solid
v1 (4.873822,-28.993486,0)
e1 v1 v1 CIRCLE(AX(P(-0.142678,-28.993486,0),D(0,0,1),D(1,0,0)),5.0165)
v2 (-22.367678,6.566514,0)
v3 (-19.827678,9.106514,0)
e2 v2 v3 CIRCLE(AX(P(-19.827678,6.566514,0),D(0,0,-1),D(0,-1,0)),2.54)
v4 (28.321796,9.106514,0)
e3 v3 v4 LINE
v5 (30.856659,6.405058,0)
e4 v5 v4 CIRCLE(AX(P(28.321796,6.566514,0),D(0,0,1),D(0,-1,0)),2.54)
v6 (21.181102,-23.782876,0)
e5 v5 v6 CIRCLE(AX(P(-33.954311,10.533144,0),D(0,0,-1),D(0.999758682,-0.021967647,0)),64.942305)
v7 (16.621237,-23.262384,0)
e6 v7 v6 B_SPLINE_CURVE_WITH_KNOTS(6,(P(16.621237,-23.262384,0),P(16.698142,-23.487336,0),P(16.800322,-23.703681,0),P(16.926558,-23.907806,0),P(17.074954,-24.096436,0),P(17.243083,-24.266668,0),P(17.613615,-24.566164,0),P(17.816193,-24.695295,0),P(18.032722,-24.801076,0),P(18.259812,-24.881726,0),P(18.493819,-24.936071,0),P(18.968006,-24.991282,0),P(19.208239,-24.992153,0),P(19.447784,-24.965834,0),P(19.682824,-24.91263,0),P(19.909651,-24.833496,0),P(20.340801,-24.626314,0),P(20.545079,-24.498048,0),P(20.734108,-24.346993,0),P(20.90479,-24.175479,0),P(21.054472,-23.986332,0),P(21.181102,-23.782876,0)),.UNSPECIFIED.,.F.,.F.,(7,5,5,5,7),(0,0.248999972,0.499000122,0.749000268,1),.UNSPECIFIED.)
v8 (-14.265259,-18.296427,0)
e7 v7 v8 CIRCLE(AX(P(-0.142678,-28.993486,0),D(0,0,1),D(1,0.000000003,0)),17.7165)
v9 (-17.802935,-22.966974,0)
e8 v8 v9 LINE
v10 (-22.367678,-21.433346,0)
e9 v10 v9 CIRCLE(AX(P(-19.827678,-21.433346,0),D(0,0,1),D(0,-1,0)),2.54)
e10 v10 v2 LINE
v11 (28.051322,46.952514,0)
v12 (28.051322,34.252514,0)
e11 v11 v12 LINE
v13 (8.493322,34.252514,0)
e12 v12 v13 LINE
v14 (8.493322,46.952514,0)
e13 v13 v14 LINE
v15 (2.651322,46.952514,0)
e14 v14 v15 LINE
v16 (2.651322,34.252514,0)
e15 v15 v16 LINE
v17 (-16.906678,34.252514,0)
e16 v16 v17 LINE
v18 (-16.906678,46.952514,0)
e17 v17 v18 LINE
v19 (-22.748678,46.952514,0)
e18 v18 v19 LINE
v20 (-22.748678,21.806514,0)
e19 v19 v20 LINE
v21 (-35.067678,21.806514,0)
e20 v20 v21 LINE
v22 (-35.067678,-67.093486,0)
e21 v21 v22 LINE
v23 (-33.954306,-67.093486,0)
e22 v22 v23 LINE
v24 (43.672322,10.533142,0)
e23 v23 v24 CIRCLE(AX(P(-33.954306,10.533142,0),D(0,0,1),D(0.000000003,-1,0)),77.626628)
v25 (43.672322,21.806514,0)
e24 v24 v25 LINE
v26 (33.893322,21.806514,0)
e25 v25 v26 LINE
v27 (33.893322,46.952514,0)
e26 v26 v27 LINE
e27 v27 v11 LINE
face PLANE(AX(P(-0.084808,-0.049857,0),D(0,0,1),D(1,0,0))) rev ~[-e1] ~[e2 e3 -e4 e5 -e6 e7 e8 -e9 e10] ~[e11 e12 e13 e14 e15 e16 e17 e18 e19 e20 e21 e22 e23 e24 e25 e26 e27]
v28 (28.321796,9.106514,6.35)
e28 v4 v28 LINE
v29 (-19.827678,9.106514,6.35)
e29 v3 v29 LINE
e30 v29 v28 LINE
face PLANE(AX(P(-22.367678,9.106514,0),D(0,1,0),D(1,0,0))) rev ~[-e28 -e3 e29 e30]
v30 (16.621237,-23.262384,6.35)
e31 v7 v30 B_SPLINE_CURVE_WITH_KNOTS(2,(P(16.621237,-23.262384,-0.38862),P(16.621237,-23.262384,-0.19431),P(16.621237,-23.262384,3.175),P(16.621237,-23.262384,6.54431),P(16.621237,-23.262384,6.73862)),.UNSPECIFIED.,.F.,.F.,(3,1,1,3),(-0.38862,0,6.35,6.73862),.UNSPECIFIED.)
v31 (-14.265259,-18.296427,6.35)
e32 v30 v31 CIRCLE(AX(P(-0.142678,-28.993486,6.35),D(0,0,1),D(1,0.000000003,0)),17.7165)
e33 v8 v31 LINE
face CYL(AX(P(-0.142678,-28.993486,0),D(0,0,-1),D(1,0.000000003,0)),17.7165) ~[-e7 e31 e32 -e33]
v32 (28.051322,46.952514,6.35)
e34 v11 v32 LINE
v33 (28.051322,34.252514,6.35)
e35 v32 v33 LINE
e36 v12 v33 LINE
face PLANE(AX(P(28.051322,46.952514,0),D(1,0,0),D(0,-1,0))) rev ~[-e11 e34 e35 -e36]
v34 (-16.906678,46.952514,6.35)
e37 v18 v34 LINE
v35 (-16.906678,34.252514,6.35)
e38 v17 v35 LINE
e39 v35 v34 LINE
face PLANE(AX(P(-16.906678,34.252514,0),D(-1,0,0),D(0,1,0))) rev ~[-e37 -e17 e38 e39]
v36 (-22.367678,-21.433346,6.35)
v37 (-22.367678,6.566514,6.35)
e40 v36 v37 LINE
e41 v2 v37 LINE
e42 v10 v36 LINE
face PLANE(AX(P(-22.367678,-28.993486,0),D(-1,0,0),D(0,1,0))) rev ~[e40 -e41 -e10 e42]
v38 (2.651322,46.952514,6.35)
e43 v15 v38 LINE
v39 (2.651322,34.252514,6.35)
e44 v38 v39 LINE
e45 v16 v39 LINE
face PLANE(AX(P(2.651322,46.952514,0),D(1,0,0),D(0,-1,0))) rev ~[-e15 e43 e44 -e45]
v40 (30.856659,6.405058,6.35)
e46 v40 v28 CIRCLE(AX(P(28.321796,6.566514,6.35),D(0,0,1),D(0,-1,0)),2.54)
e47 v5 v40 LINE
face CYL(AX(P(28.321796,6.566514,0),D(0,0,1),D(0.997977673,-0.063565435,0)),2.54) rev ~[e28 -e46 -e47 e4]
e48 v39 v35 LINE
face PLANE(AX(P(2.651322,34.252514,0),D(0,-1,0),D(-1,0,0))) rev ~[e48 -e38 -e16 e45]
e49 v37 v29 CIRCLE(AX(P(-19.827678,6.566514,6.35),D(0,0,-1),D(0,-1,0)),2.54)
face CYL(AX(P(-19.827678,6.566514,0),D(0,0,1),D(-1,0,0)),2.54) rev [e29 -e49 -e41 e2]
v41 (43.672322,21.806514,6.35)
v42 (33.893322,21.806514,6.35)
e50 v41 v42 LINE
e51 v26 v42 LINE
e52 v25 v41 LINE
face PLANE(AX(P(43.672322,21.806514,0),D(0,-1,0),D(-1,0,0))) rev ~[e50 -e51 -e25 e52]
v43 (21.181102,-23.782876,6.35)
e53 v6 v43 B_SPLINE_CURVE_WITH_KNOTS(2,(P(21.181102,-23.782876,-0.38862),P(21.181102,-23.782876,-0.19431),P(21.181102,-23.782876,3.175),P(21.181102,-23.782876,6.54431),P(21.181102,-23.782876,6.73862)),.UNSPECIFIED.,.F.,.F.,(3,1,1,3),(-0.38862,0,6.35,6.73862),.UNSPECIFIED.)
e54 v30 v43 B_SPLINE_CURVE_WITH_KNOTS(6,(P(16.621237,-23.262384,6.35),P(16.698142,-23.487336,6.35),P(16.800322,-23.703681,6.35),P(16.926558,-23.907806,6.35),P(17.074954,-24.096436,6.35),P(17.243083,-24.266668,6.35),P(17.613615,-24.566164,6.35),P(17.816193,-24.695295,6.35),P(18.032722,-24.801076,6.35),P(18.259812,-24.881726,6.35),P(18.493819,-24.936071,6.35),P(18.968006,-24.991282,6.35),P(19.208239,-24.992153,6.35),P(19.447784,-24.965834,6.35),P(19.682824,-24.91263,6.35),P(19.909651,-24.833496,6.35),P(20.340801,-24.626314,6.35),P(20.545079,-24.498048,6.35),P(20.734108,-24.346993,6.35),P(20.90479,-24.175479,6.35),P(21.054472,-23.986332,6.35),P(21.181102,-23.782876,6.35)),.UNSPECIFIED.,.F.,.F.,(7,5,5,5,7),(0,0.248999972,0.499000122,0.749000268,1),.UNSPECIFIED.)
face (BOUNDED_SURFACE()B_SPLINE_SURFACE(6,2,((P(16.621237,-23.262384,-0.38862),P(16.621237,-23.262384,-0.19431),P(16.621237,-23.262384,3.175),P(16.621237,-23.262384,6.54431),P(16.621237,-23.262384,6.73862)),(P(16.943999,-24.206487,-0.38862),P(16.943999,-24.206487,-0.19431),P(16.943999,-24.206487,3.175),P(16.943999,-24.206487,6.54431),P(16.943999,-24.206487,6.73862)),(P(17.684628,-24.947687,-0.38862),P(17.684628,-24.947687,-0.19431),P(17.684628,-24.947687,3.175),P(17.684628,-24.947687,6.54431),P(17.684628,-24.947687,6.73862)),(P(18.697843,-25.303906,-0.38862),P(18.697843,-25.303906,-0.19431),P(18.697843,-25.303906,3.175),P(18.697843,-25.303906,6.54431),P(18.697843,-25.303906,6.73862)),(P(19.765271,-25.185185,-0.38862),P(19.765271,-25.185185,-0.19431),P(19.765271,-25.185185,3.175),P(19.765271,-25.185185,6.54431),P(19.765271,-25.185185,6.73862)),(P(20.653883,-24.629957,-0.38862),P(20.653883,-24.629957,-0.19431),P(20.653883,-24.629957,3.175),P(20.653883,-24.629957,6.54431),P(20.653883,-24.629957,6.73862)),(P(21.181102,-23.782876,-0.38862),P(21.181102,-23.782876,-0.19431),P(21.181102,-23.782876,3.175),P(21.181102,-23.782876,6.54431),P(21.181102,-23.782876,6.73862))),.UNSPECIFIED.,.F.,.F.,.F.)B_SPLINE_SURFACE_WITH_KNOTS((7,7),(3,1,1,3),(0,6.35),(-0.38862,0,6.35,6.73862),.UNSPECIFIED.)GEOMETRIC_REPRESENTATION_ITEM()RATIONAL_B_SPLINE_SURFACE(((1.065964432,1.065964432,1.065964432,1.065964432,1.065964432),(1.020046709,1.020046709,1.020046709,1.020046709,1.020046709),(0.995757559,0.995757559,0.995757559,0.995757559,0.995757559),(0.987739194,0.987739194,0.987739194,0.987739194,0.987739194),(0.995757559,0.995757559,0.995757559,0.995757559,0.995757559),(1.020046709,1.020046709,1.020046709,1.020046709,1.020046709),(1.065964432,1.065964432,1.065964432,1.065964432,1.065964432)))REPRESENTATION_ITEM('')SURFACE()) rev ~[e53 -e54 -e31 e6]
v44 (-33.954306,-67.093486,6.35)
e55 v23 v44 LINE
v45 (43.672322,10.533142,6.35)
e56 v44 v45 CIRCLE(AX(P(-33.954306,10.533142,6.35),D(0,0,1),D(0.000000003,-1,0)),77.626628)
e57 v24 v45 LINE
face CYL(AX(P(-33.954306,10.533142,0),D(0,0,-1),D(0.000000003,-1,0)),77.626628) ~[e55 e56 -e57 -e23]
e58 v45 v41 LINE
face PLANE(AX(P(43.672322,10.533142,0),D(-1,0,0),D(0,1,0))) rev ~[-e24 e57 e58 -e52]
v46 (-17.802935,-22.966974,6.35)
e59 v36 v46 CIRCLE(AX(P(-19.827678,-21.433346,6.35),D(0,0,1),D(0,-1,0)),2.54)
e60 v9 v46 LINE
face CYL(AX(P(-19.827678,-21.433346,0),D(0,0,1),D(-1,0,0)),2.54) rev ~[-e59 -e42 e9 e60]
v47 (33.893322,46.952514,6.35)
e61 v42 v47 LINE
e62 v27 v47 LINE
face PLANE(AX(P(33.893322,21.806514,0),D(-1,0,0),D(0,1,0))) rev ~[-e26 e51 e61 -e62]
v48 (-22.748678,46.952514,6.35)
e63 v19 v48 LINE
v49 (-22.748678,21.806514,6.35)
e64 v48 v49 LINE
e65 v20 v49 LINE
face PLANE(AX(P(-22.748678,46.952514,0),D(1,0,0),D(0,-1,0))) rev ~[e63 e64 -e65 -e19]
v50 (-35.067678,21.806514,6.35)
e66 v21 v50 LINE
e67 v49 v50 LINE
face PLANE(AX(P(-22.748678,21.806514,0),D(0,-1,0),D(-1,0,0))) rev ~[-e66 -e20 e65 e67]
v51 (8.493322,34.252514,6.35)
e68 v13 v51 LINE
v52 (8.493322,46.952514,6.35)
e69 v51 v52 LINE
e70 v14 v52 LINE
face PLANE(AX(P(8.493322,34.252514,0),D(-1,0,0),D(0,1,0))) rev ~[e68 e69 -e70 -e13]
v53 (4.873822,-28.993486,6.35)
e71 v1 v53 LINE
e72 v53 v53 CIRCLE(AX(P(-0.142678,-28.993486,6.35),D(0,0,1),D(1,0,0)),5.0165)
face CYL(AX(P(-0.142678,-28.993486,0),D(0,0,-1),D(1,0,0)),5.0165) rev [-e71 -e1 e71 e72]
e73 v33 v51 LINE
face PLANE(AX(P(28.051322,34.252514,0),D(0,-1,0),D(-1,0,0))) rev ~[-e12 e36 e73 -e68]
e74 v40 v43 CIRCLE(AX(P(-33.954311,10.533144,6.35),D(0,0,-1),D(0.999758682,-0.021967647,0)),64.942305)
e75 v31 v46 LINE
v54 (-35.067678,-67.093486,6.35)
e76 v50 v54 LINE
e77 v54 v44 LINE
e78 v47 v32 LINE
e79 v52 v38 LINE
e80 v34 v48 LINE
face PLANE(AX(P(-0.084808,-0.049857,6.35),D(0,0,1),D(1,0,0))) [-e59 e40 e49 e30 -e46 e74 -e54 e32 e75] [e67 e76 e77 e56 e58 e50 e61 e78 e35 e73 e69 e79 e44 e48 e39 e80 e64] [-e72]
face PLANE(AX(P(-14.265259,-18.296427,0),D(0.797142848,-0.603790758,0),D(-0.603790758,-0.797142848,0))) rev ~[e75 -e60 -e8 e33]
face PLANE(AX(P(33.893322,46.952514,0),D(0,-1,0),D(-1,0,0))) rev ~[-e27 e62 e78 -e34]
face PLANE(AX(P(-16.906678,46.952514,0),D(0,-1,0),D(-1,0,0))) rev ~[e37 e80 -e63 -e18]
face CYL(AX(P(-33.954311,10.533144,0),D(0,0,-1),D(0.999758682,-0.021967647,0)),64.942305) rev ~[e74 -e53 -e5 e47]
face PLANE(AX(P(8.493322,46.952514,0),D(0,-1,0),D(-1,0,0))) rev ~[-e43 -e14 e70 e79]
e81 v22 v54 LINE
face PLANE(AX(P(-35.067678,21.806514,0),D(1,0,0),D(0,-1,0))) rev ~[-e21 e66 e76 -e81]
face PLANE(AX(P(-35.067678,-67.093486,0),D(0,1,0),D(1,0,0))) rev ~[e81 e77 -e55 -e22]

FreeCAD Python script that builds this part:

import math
import FreeCAD as App
import Part
import Sketcher

V = App.Vector
Q = App.Units.Quantity


def edges_at(feature, points):
    """Names of the edges that pass closest to the given points."""
    edges = feature.Shape.Edges
    near = lambda p: min(range(len(edges)), key=lambda i: edges[i].distToShape(Part.Vertex(*p))[0])
    return sorted({f"Edge{near(p) + 1}" for p in points})

doc = App.newDocument("Part")
body = doc.addObject("PartDesign::Body", "Body")

# Sketch on XY plane
sketch1 = body.newObject("Sketcher::SketchObject", "Sketch")
sketch1.AttachmentSupport = (doc.getObject("XY_Plane"), [""])
sketch1.MapMode = "FlatFace"
sketch1.addGeometry(Part.LineSegment(V(2.7, 47, 0), V(2.7, 34.3, 0)), False)
sketch1.addGeometry(Part.LineSegment(V(2.7, 34.3, 0), V(-16.9, 34.3, 0)), False)
sketch1.addGeometry(Part.LineSegment(V(-16.9, 34.3, 0), V(-16.9, 47, 0)), False)
sketch1.addGeometry(Part.LineSegment(V(-16.9, 47, 0), V(-22.7, 47, 0)), False)
sketch1.addGeometry(Part.LineSegment(V(-22.7, 47, 0), V(-22.7, 21.8, 0)), False)
sketch1.addGeometry(Part.LineSegment(V(-22.7, 21.8, 0), V(-35.1, 21.8, 0)), False)
sketch1.addGeometry(Part.LineSegment(V(-35.1, 21.8, 0), V(-35.1, -67.1, 0)), False)
sketch1.addGeometry(Part.LineSegment(V(-35.1, -67.1, 0), V(-34, -67.1, 0)), False)
sketch1.addGeometry(Part.ArcOfCircle(Part.Circle(V(-34, 10.5, 0), V(0, 0, 1), 77.6), math.radians(-90), math.radians(0)), False)
sketch1.addGeometry(Part.LineSegment(V(43.7, 10.5, 0), V(43.7, 21.8, 0)), False)
sketch1.addGeometry(Part.LineSegment(V(43.7, 21.8, 0), V(33.9, 21.8, 0)), False)
sketch1.addGeometry(Part.LineSegment(V(33.9, 21.8, 0), V(33.9, 47, 0)), False)
sketch1.addGeometry(Part.LineSegment(V(33.9, 47, 0), V(28.1, 47, 0)), False)
sketch1.addGeometry(Part.LineSegment(V(28.1, 47, 0), V(28.1, 34.3, 0)), False)
sketch1.addGeometry(Part.LineSegment(V(28.1, 34.3, 0), V(8.5, 34.3, 0)), False)
sketch1.addGeometry(Part.LineSegment(V(8.5, 34.3, 0), V(8.5, 47, 0)), False)
sketch1.addGeometry(Part.LineSegment(V(8.5, 47, 0), V(2.7, 47, 0)), False)
sketch1.addGeometry(Part.Circle(V(-0.1, -29, 0), V(0, 0, 1), 5), False)
sketch1.addGeometry(Part.LineSegment(V(-22.4, -29, 0), V(-22.4, 9.1, 0)), False)
sketch1.addGeometry(Part.LineSegment(V(-22.4, 9.1, 0), V(31, 9.1, 0)), False)
sketch1.addGeometry(Part.ArcOfCircle(Part.Circle(V(-34, 10.5, 0), V(0, 0, 1), 64.9), math.radians(-37), math.radians(-1)), False)
sketch1.addGeometry(Part.ArcOfCircle(Part.Circle(V(-0.1, -29, 0), V(0, 0, 1), 17.7), math.radians(0), math.radians(143)), False)
sketch1.addGeometry(Part.LineSegment(V(-14.3, -18.3, 0), V(-22.4, -29, 0)), False)
sketch1.addConstraint(Sketcher.Constraint("Coincident", 0, 2, 1, 1))
sketch1.addConstraint(Sketcher.Constraint("Coincident", 1, 2, 2, 1))
sketch1.addConstraint(Sketcher.Constraint("Coincident", 2, 2, 3, 1))
sketch1.addConstraint(Sketcher.Constraint("Coincident", 3, 2, 4, 1))
sketch1.addConstraint(Sketcher.Constraint("Coincident", 4, 2, 5, 1))
sketch1.addConstraint(Sketcher.Constraint("Coincident", 5, 2, 6, 1))
sketch1.addConstraint(Sketcher.Constraint("Coincident", 6, 2, 7, 1))
sketch1.addConstraint(Sketcher.Constraint("Tangent", 7, 2, 8, 1))
sketch1.addConstraint(Sketcher.Constraint("Tangent", 8, 2, 9, 1))
sketch1.addConstraint(Sketcher.Constraint("Coincident", 9, 2, 10, 1))
sketch1.addConstraint(Sketcher.Constraint("Coincident", 10, 2, 11, 1))
sketch1.addConstraint(Sketcher.Constraint("Coincident", 11, 2, 12, 1))
sketch1.addConstraint(Sketcher.Constraint("Coincident", 12, 2, 13, 1))
sketch1.addConstraint(Sketcher.Constraint("Coincident", 13, 2, 14, 1))
sketch1.addConstraint(Sketcher.Constraint("Coincident", 14, 2, 15, 1))
sketch1.addConstraint(Sketcher.Constraint("Coincident", 15, 2, 16, 1))
sketch1.addConstraint(Sketcher.Constraint("Coincident", 16, 2, 0, 1))
sketch1.addConstraint(Sketcher.Constraint("Coincident", 18, 2, 19, 1))
sketch1.addConstraint(Sketcher.Constraint("Coincident", 19, 2, 20, 2))
sketch1.addConstraint(Sketcher.Constraint("Coincident", 20, 1, 21, 1))
sketch1.addConstraint(Sketcher.Constraint("Tangent", 21, 2, 22, 1))
sketch1.addConstraint(Sketcher.Constraint("Coincident", 22, 2, 18, 1))
sketch1.addConstraint(Sketcher.Constraint("Vertical", 0))
sketch1.addConstraint(Sketcher.Constraint("Horizontal", 1))
sketch1.addConstraint(Sketcher.Constraint("Vertical", 2))
sketch1.addConstraint(Sketcher.Constraint("Horizontal", 3))
sketch1.addConstraint(Sketcher.Constraint("Vertical", 4))
sketch1.addConstraint(Sketcher.Constraint("Horizontal", 5))
sketch1.addConstraint(Sketcher.Constraint("Vertical", 6))
sketch1.addConstraint(Sketcher.Constraint("Horizontal", 7))
sketch1.addConstraint(Sketcher.Constraint("Vertical", 9))
sketch1.addConstraint(Sketcher.Constraint("Horizontal", 10))
sketch1.addConstraint(Sketcher.Constraint("Vertical", 11))
sketch1.addConstraint(Sketcher.Constraint("Horizontal", 12))
sketch1.addConstraint(Sketcher.Constraint("Vertical", 13))
sketch1.addConstraint(Sketcher.Constraint("Horizontal", 14))
sketch1.addConstraint(Sketcher.Constraint("Vertical", 15))
sketch1.addConstraint(Sketcher.Constraint("Horizontal", 16))
sketch1.addConstraint(Sketcher.Constraint("Vertical", 18))
sketch1.addConstraint(Sketcher.Constraint("Horizontal", 19))
sketch1.addConstraint(Sketcher.Constraint("Coincident", 20, 3, 8, 3))
sketch1.addConstraint(Sketcher.Constraint("Coincident", 21, 3, 17, 3))
sketch1.addConstraint(Sketcher.Constraint("Horizontal", 5, 2, 9, 2))
sketch1.addConstraint(Sketcher.Constraint("Horizontal", 3, 2, 11, 2))
sketch1.addConstraint(Sketcher.Constraint("Horizontal", 1, 2, 13, 2))
sketch1.addConstraint(Sketcher.Constraint("Horizontal", 12, 2, 15, 2))
sketch1.addConstraint(Sketcher.Constraint("Horizontal", 21, 3, 20, 1))
sketch1.addConstraint(Sketcher.Constraint("Horizontal", 20, 1, 22, 2))
sketch1.addConstraint(Sketcher.Constraint("Equal", 3, 12))
sketch1.addConstraint(Sketcher.Constraint("Equal", 1, 14))
sketch1.addConstraint(Sketcher.Constraint("Equal", 12, 16))
sketch1.addConstraint(Sketcher.Constraint("Diameter", 17, Q("0.395 in")))
sketch1.addConstraint(Sketcher.Constraint("DistanceX", 19, 1, 19, 2, Q("2.1 in")))
sketch1.addConstraint(Sketcher.Constraint("DistanceY", 0, 2, 0, 1, Q("0.5 in")))
sketch1.addConstraint(Sketcher.Constraint("DistanceY", 6, 2, 6, 1, Q("3.5 in")))
sketch1.addConstraint(Sketcher.Constraint("DistanceY", 18, 1, 18, 2, Q("1.5 in")))
sketch1.addConstraint(Sketcher.Constraint("DistanceX", 3, 2, 0, 2, Q("1 in")))
sketch1.addConstraint(Sketcher.Constraint("DistanceY", 20, 1, 10, 2, Q("2 in")))
sketch1.addConstraint(Sketcher.Constraint("DistanceX", 1, 2, 1, 1, Q("0.77 in")))
sketch1.addConstraint(Sketcher.Constraint("DistanceY", 4, 2, 4, 1, Q("0.99 in")))
sketch1.addConstraint(Sketcher.Constraint("Radius", 21, Q("0.6975 in")))
sketch1.addConstraint(Sketcher.Constraint("DistanceX", 5, 2, 18, 2, Q("0.5 in")))
sketch1.addConstraint(Sketcher.Constraint("DistanceX", 19, 2, 8, 2, Q("0.5 in")))
sketch1.addConstraint(Sketcher.Constraint("DistanceX", 5, 2, 5, 1, Q("0.485 in")))
sketch1.addConstraint(Sketcher.Constraint("DistanceX", 17, 3, 0, 2, Q("0.11 in")))
sketch1.addConstraint(Sketcher.Constraint("DistanceX", 20, 3, -1, 1, Q("33.954311 mm")))
sketch1.addConstraint(Sketcher.Constraint("DistanceY", -1, 1, 8, 3, Q("10.533142 mm")))
pad1 = body.newObject("PartDesign::Pad", "Pad")
pad1.Profile = sketch1
pad1.Length = Q("0.25 in")
doc.recompute()

fillet = body.newObject("PartDesign::Fillet", "Fillet")
fillet.Base = (pad1, edges_at(pad1, [
    (30.972, 9.107, 3.175),
    (-22.368, 9.107, 3.175),
    (17.574, -28.993, 3.175),
    (-22.368, -28.993, 3.175),
]))
fillet.Radius = Q("0.1 in")

doc.recompute()
